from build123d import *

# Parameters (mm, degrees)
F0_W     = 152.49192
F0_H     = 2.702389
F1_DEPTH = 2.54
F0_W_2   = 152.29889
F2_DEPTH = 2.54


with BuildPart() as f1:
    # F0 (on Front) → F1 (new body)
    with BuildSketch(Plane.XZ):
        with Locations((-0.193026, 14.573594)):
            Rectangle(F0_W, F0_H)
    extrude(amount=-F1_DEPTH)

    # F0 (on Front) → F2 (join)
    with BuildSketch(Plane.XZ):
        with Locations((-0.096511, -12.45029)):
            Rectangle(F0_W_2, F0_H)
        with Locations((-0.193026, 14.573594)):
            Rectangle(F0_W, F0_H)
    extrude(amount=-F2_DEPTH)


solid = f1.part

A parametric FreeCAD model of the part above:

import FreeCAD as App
import Part
import Sketcher

V = App.Vector
Q = App.Units.Quantity

doc = App.newDocument("Part")
body = doc.addObject("PartDesign::Body", "Body")
body.AllowCompound = True

sketch1 = body.newObject("Sketcher::SketchObject", "Sketch")
sketch1.AttachmentSupport = (doc.getObject("XZ_Plane"), [""])
sketch1.MapMode = "FlatFace"
sketch1.addGeometry(Part.LineSegment(V(-76.4, 15.9, 0), V(-76.4, 13.2, 0)), False)
sketch1.addGeometry(Part.LineSegment(V(-76.4, 13.2, 0), V(76.1, 13.2, 0)), False)
sketch1.addGeometry(Part.LineSegment(V(76.1, 13.2, 0), V(76.1, 15.9, 0)), False)
sketch1.addGeometry(Part.LineSegment(V(76.1, 15.9, 0), V(-76.4, 15.9, 0)), False)
sketch1.addConstraint(Sketcher.Constraint("Coincident", 0, 2, 1, 1))
sketch1.addConstraint(Sketcher.Constraint("Coincident", 1, 2, 2, 1))
sketch1.addConstraint(Sketcher.Constraint("Coincident", 2, 2, 3, 1))
sketch1.addConstraint(Sketcher.Constraint("Coincident", 3, 2, 0, 1))
sketch1.addConstraint(Sketcher.Constraint("Vertical", 0))
sketch1.addConstraint(Sketcher.Constraint("Horizontal", 1))
sketch1.addConstraint(Sketcher.Constraint("Vertical", 2))
sketch1.addConstraint(Sketcher.Constraint("Horizontal", 3))
sketch1.addConstraint(Sketcher.Constraint("DistanceX", 1, 1, 1, 2, Q("152.49192 mm")))
sketch1.addConstraint(Sketcher.Constraint("DistanceY", 0, 2, 0, 1, Q("2.702389 mm")))
sketch1.addConstraint(Sketcher.Constraint("DistanceY", -1, 1, 0, 2, Q("13.222399 mm")))
sketch1.addConstraint(Sketcher.Constraint("DistanceX", 0, 2, -1, 1, Q("76.438986 mm")))
pad1 = body.newObject("PartDesign::Pad", "Pad")
pad1.Profile = sketch1
pad1.Length = Q("0.1 in")
pad1.Reversed = True

sketch2 = body.newObject("Sketcher::SketchObject", "Sketch001")
sketch2.AttachmentSupport = (doc.getObject("XZ_Plane"), [""])
sketch2.MapMode = "FlatFace"
sketch2.addGeometry(Part.LineSegment(V(-76.2, -11.1, 0), V(-76.2, -13.8, 0)), False)
sketch2.addGeometry(Part.LineSegment(V(-76.2, -13.8, 0), V(76.1, -13.8, 0)), False)
sketch2.addGeometry(Part.LineSegment(V(76.1, -13.8, 0), V(76.1, -11.1, 0)), False)
sketch2.addGeometry(Part.LineSegment(V(76.1, -11.1, 0), V(-76.2, -11.1, 0)), False)
sketch2.addGeometry(Part.LineSegment(V(-76.4, 15.9, 0), V(-76.4, 13.2, 0)), False)
sketch2.addGeometry(Part.LineSegment(V(-76.4, 13.2, 0), V(76.1, 13.2, 0)), False)
sketch2.addGeometry(Part.LineSegment(V(76.1, 13.2, 0), V(76.1, 15.9, 0)), False)
sketch2.addGeometry(Part.LineSegment(V(76.1, 15.9, 0), V(-76.4, 15.9, 0)), False)
sketch2.addConstraint(Sketcher.Constraint("Coincident", 0, 2, 1, 1))
sketch2.addConstraint(Sketcher.Constraint("Coincident", 1, 2, 2, 1))
sketch2.addConstraint(Sketcher.Constraint("Coincident", 2, 2, 3, 1))
sketch2.addConstraint(Sketcher.Constraint("Coincident", 3, 2, 0, 1))
sketch2.addConstraint(Sketcher.Constraint("Coincident", 4, 2, 5, 1))
sketch2.addConstraint(Sketcher.Constraint("Coincident", 5, 2, 6, 1))
sketch2.addConstraint(Sketcher.Constraint("Coincident", 6, 2, 7, 1))
sketch2.addConstraint(Sketcher.Constraint("Coincident", 7, 2, 4, 1))
sketch2.addConstraint(Sketcher.Constraint("Vertical", 0))
sketch2.addConstraint(Sketcher.Constraint("Horizontal", 1))
sketch2.addConstraint(Sketcher.Constraint("Vertical", 2))
sketch2.addConstraint(Sketcher.Constraint("Horizontal", 3))
sketch2.addConstraint(Sketcher.Constraint("Vertical", 4))
sketch2.addConstraint(Sketcher.Constraint("Horizontal", 5))
sketch2.addConstraint(Sketcher.Constraint("Vertical", 6))
sketch2.addConstraint(Sketcher.Constraint("Horizontal", 7))
sketch2.addConstraint(Sketcher.Constraint("Vertical", 2, 2, 5, 2))
sketch2.addConstraint(Sketcher.Constraint("Equal", 2, 4))
sketch2.addConstraint(Sketcher.Constraint("DistanceX", 1, 1, 1, 2, Q("152.29889 mm")))
sketch2.addConstraint(Sketcher.Constraint("DistanceX", 5, 1, 5, 2, Q("152.49192 mm")))
sketch2.addConstraint(Sketcher.Constraint("DistanceY", 0, 2, 0, 1, Q("2.702389 mm")))
sketch2.addConstraint(Sketcher.Constraint("DistanceY", -1, 1, 4, 2, Q("13.222399 mm")))
sketch2.addConstraint(Sketcher.Constraint("DistanceX", 0, 2, -1, 1, Q("76.245956 mm")))
sketch2.addConstraint(Sketcher.Constraint("DistanceY", 0, 2, -1, 1, Q("13.801485 mm")))
pad2 = body.newObject("PartDesign::Pad", "Pad001")
pad2.Profile = sketch2
pad2.Length = Q("0.1 in")
pad2.Reversed = True

doc.recompute()
